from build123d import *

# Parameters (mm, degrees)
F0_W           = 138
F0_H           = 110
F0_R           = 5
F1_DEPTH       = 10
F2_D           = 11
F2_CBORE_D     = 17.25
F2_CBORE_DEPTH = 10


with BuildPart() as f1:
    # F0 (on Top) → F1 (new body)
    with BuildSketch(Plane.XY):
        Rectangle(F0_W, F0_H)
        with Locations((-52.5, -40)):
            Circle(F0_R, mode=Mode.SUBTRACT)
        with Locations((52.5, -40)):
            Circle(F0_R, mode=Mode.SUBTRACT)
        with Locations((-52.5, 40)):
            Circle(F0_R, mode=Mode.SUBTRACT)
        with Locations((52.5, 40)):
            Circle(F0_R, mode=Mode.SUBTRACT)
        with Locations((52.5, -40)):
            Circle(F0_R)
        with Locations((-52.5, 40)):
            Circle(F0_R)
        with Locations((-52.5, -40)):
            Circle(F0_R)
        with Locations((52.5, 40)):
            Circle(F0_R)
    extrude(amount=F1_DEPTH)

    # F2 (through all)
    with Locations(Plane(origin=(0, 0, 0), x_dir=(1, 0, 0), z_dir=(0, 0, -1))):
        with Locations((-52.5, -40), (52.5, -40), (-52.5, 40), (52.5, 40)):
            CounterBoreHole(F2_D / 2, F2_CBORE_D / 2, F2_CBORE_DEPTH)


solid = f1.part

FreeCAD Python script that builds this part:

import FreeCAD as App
import Part
import Sketcher

V = App.Vector
Q = App.Units.Quantity


def add_polygon(sketch, points):
    """Adds a closed chain of lines whose ends are joined by coincident constraints."""
    first, n = sketch.GeometryCount, len(points)
    for a, b in zip(points, points[1:] + points[:1]):
        sketch.addGeometry(Part.LineSegment(App.Vector(*a, 0), App.Vector(*b, 0)), False)
    for i in range(n):
        sketch.addConstraint(Sketcher.Constraint("Coincident", first + i, 2, first + (i + 1) % n, 1))

doc = App.newDocument("Part")
body = doc.addObject("PartDesign::Body", "Body")

# Sketch on XY plane
sketch1 = body.newObject("Sketcher::SketchObject", "Sketch")
sketch1.AttachmentSupport = (doc.getObject("XY_Plane"), [""])
sketch1.MapMode = "FlatFace"
add_polygon(sketch1, [(-69, 55), (-69, -55), (69, -55), (69, 55)])  # lines 0-3
sketch1.addConstraint(Sketcher.Constraint("Vertical", 0))
sketch1.addConstraint(Sketcher.Constraint("Horizontal", 1))
sketch1.addConstraint(Sketcher.Constraint("Vertical", 2))
sketch1.addConstraint(Sketcher.Constraint("Horizontal", 3))
sketch1.addConstraint(Sketcher.Constraint("Symmetric", 0, 2, 2, 2, -1, 1))
sketch1.addConstraint(Sketcher.Constraint("DistanceX", 1, 1, 1, 2, Q("138 mm")))
sketch1.addConstraint(Sketcher.Constraint("DistanceY", 0, 2, 0, 1, Q("110 mm")))
pad1 = body.newObject("PartDesign::Pad", "Pad")
pad1.Profile = sketch1
pad1.Length = 10

# Sketch on XY plane
sketch2 = body.newObject("Sketcher::SketchObject", "Sketch001")
sketch2.AttachmentSupport = (doc.getObject("XY_Plane"), [""])
sketch2.MapMode = "FlatFace"
sketch2.addGeometry(Part.Circle(V(-52, 40, 0), V(0, 0, 1), 6), False)
sketch2.addGeometry(Part.Circle(V(52, 40, 0), V(0, 0, 1), 6), False)
sketch2.addGeometry(Part.Circle(V(-52, -40, 0), V(0, 0, 1), 6), False)
sketch2.addGeometry(Part.Circle(V(52, -40, 0), V(0, 0, 1), 6), False)
sketch2.addConstraint(Sketcher.Constraint("Equal", 0, 1))
sketch2.addConstraint(Sketcher.Constraint("Equal", 1, 2))
sketch2.addConstraint(Sketcher.Constraint("Equal", 2, 3))
sketch2.addConstraint(Sketcher.Constraint("Symmetric", 1, 3, 2, 3, -1, 1))
sketch2.addConstraint(Sketcher.Constraint("Symmetric", 0, 3, 3, 3, -1, 1))
sketch2.addConstraint(Sketcher.Constraint("Symmetric", 0, 3, 1, 3, -2))
sketch2.addConstraint(Sketcher.Constraint("Diameter", 0, Q("11 mm")))
sketch2.addConstraint(Sketcher.Constraint("DistanceY", -1, 1, 0, 3, Q("40 mm")))
sketch2.addConstraint(Sketcher.Constraint("DistanceX", 0, 3, 1, 3, Q("105 mm")))
doc.recompute()
hole = body.newObject("PartDesign::Hole", "Hole")
hole.Profile = sketch2
hole.ThreadType = "None"
hole.Diameter = 11
hole.DepthType = "ThroughAll"
hole.HoleCutType = "Counterbore"
hole.HoleCutDiameter = 17.25
hole.HoleCutDepth = 10
hole.Reversed = True

doc.recompute()
